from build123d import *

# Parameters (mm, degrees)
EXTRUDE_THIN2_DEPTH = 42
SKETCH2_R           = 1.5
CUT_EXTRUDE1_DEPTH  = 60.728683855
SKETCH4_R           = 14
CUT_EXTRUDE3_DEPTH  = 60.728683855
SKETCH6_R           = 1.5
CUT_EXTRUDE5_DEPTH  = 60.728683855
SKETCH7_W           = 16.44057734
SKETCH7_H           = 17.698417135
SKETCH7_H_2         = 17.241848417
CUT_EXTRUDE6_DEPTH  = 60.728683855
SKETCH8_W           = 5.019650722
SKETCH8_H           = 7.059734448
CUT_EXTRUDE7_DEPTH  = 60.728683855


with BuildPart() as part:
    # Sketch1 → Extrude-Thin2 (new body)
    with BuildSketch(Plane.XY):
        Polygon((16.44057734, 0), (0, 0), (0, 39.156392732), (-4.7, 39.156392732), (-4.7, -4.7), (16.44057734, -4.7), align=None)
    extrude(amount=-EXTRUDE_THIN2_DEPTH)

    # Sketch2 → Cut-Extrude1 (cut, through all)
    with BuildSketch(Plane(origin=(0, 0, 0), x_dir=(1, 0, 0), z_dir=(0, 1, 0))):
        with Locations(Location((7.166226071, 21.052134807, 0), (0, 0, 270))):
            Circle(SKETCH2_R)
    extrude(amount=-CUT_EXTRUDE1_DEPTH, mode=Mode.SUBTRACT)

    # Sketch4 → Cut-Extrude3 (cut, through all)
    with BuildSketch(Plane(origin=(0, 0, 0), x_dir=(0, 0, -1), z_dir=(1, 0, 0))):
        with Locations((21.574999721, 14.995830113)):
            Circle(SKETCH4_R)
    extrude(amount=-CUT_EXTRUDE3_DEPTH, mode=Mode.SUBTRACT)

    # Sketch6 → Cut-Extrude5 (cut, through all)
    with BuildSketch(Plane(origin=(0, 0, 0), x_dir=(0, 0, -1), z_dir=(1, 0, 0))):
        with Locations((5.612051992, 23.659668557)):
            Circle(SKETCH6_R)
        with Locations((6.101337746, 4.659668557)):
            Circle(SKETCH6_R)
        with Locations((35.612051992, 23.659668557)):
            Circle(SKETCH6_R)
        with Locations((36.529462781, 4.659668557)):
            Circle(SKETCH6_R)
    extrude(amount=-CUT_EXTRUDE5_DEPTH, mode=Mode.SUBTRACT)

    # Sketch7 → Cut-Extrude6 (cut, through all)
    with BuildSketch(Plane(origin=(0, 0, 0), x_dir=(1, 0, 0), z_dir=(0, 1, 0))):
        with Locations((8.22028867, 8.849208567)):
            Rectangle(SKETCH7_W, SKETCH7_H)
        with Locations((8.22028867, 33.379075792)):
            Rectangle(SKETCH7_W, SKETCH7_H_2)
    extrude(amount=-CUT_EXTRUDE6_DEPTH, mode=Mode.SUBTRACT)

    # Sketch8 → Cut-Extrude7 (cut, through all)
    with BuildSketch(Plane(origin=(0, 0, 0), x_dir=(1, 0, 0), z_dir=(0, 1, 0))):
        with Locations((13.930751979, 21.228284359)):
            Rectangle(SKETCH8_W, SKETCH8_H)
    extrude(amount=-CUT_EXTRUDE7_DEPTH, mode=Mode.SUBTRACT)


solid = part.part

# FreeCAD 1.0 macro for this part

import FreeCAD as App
import Part
import Sketcher


def add_polygon(sketch, points):
    """Adds a closed chain of lines whose ends are joined by coincident constraints."""
    first, n = sketch.GeometryCount, len(points)
    for a, b in zip(points, points[1:] + points[:1]):
        sketch.addGeometry(Part.LineSegment(App.Vector(*a, 0), App.Vector(*b, 0)), False)
    for i in range(n):
        sketch.addConstraint(Sketcher.Constraint("Coincident", first + i, 2, first + (i + 1) % n, 1))

doc = App.newDocument("Part")
params = doc.addObject("Spreadsheet::Sheet", "Params")
for row, (alias, value) in enumerate([
    ("sketch1_width", "4.7 mm"),
    ("pad1_length", "42 mm"),
    ("sketch2_diameter", "3 mm"),
    ("sketch3_diameter", "28 mm"),
    ("sketch4_diameter", "3 mm"),
], start=1):
    params.set(f"A{row}", alias)
    params.set(f"B{row}", "=" + value)
    params.setAlias(f"B{row}", alias)

body = doc.addObject("PartDesign::Body", "Body")

# Sketch on XY plane
sketch1 = body.newObject("Sketcher::SketchObject", "Sketch")
sketch1.AttachmentSupport = (doc.getObject("XY_Plane"), [""])
sketch1.MapMode = "FlatFace"
add_polygon(sketch1, [(16.4, 0), (0, 0), (0, 39.2), (-4.7, 39.2), (-4.7, -4.7), (16.4, -4.7)])  # lines 0-5
sketch1.addConstraint([
    Sketcher.Constraint("Horizontal", 0),
    Sketcher.Constraint("Vertical", 1),
    Sketcher.Constraint("Horizontal", 2),
    Sketcher.Constraint("Vertical", 3),
    Sketcher.Constraint("Horizontal", 4),
    Sketcher.Constraint("Vertical", 5),
    Sketcher.Constraint("Coincident", 0, 2, -1, 1),
    Sketcher.Constraint("Equal", 2, 5),
    Sketcher.Constraint("DistanceX", 2, 2, 2, 1, 4.7),
    Sketcher.Constraint("DistanceX", 0, 2, 0, 1, 16.440577),
    Sketcher.Constraint("DistanceY", 1, 1, 1, 2, 39.156393),
])
sketch1.setExpression("Constraints[14]", "Params.sketch1_width")
pad1 = body.newObject("PartDesign::Pad", "Pad")
pad1.Profile = sketch1
pad1.setExpression("Length", "Params.pad1_length")
pad1.Reversed = True

# Sketch on XZ plane
sketch2 = body.newObject("Sketcher::SketchObject", "Sketch001")
sketch2.AttachmentSupport = (doc.getObject("XZ_Plane"), [""])
sketch2.MapMode = "FlatFace"
sketch2.addGeometry(Part.Circle(App.Vector(7.2, -21.1, 0), App.Vector(0, 0, 1), 1.5), False)
sketch2.addConstraint([
    Sketcher.Constraint("Diameter", 0, 3.0),
    Sketcher.Constraint("DistanceX", -1, 1, 0, 3, 7.166226),
    Sketcher.Constraint("DistanceY", 0, 3, -1, 1, 21.052135),
])
sketch2.setExpression("Constraints[0]", "Params.sketch2_diameter")
pocket1 = body.newObject("PartDesign::Pocket", "Pocket")
pocket1.Profile = sketch2
pocket1.Type = "ThroughAll"
pocket1.Reversed = True

# Sketch on YZ plane
sketch3 = body.newObject("Sketcher::SketchObject", "Sketch002")
sketch3.AttachmentSupport = (doc.getObject("YZ_Plane"), [""])
sketch3.MapMode = "FlatFace"
sketch3.addGeometry(Part.Circle(App.Vector(15, -22, 0), App.Vector(0, 0, 1), 14), False)
sketch3.addConstraint([
    Sketcher.Constraint("Diameter", 0, 28.0),
    Sketcher.Constraint("DistanceY", 0, 3, -1, 1, 21.575),
    Sketcher.Constraint("DistanceX", -1, 1, 0, 3, 14.99583),
])
sketch3.setExpression("Constraints[0]", "Params.sketch3_diameter")
pocket2 = body.newObject("PartDesign::Pocket", "Pocket001")
pocket2.Profile = sketch3
pocket2.Type = "ThroughAll"

# Sketch on YZ plane
sketch4 = body.newObject("Sketcher::SketchObject", "Sketch003")
sketch4.AttachmentSupport = (doc.getObject("YZ_Plane"), [""])
sketch4.MapMode = "FlatFace"
sketch4.addGeometry([
    Part.Circle(App.Vector(23.7, -5.6, 0), App.Vector(0, 0, 1), 1.5),
    Part.Circle(App.Vector(4.7, -6.1, 0), App.Vector(0, 0, 1), 1.5),
    Part.Circle(App.Vector(23.7, -35.6, 0), App.Vector(0, 0, 1), 1.5),
    Part.Circle(App.Vector(4.7, -36.5, 0), App.Vector(0, 0, 1), 1.5),
], False)
sketch4.addConstraint([
    Sketcher.Constraint("Equal", 0, 1),
    Sketcher.Constraint("Equal", 1, 2),
    Sketcher.Constraint("Equal", 2, 3),
    Sketcher.Constraint("Vertical", 0, 3, 2, 3),
    Sketcher.Constraint("Vertical", 1, 3, 3, 3),
    Sketcher.Constraint("Diameter", 0, 3.0),
    Sketcher.Constraint("DistanceX", 1, 3, 0, 3, 19.0),
    Sketcher.Constraint("DistanceY", 2, 3, 0, 3, 30.0),
    Sketcher.Constraint("DistanceX", -1, 1, 0, 3, 23.659669),
    Sketcher.Constraint("DistanceY", 0, 3, -1, 1, 5.612052),
    Sketcher.Constraint("DistanceY", 3, 3, 2, 3, 0.917411),
    Sketcher.Constraint("DistanceY", 1, 3, -1, 1, 6.101338),
])
sketch4.setExpression("Constraints[5]", "Params.sketch4_diameter")
pocket3 = body.newObject("PartDesign::Pocket", "Pocket002")
pocket3.Profile = sketch4
pocket3.Type = "ThroughAll"

# Sketch on XZ plane
sketch5 = body.newObject("Sketcher::SketchObject", "Sketch004")
sketch5.AttachmentSupport = (doc.getObject("XZ_Plane"), [""])
sketch5.MapMode = "FlatFace"
add_polygon(sketch5, [(0, -18), (0, 0), (16, 0), (16, -18)])  # lines 0-3
add_polygon(sketch5, [(0, -42), (0, -25), (16, -25), (16, -42)])  # lines 4-7
sketch5.addConstraint([
    Sketcher.Constraint("Vertical", 0),
    Sketcher.Constraint("Horizontal", 1),
    Sketcher.Constraint("Vertical", 2),
    Sketcher.Constraint("Horizontal", 3),
    Sketcher.Constraint("Vertical", 4),
    Sketcher.Constraint("Horizontal", 5),
    Sketcher.Constraint("Vertical", 6),
    Sketcher.Constraint("Horizontal", 7),
    Sketcher.Constraint("Coincident", 0, 2, -1, 1),
    Sketcher.Constraint("PointOnObject", 4, 2, -2),
    Sketcher.Constraint("Vertical", 2, 2, 5, 2),
    Sketcher.Constraint("DistanceY", 6, 2, -1, 1, 42.0),
    Sketcher.Constraint("DistanceY", 4, 1, 4, 2, 17.241848),
    Sketcher.Constraint("DistanceX", 1, 1, 1, 2, 16.440577),
    Sketcher.Constraint("DistanceY", 0, 1, 0, 2, 17.698417),
])
pocket4 = body.newObject("PartDesign::Pocket", "Pocket003")
pocket4.Profile = sketch5
pocket4.Type = "ThroughAll"
pocket4.Reversed = True

# Sketch on XZ plane
sketch6 = body.newObject("Sketcher::SketchObject", "Sketch005")
sketch6.AttachmentSupport = (doc.getObject("XZ_Plane"), [""])
sketch6.MapMode = "FlatFace"
add_polygon(sketch6, [(11, -25), (11, -18), (16, -18), (16, -25)])  # lines 0-3
sketch6.addConstraint([
    Sketcher.Constraint("Vertical", 0),
    Sketcher.Constraint("Horizontal", 1),
    Sketcher.Constraint("Vertical", 2),
    Sketcher.Constraint("Horizontal", 3),
    Sketcher.Constraint("DistanceX", 1, 1, 1, 2, 5.019651),
    Sketcher.Constraint("DistanceY", 0, 1, 0, 2, 7.059734),
    Sketcher.Constraint("DistanceY", 2, 2, -1, 1, 24.758152),
    Sketcher.Constraint("DistanceX", -1, 1, 0, 2, 11.420927),
])
pocket5 = body.newObject("PartDesign::Pocket", "Pocket004")
pocket5.Profile = sketch6
pocket5.Type = "ThroughAll"
pocket5.Reversed = True

doc.recompute()
